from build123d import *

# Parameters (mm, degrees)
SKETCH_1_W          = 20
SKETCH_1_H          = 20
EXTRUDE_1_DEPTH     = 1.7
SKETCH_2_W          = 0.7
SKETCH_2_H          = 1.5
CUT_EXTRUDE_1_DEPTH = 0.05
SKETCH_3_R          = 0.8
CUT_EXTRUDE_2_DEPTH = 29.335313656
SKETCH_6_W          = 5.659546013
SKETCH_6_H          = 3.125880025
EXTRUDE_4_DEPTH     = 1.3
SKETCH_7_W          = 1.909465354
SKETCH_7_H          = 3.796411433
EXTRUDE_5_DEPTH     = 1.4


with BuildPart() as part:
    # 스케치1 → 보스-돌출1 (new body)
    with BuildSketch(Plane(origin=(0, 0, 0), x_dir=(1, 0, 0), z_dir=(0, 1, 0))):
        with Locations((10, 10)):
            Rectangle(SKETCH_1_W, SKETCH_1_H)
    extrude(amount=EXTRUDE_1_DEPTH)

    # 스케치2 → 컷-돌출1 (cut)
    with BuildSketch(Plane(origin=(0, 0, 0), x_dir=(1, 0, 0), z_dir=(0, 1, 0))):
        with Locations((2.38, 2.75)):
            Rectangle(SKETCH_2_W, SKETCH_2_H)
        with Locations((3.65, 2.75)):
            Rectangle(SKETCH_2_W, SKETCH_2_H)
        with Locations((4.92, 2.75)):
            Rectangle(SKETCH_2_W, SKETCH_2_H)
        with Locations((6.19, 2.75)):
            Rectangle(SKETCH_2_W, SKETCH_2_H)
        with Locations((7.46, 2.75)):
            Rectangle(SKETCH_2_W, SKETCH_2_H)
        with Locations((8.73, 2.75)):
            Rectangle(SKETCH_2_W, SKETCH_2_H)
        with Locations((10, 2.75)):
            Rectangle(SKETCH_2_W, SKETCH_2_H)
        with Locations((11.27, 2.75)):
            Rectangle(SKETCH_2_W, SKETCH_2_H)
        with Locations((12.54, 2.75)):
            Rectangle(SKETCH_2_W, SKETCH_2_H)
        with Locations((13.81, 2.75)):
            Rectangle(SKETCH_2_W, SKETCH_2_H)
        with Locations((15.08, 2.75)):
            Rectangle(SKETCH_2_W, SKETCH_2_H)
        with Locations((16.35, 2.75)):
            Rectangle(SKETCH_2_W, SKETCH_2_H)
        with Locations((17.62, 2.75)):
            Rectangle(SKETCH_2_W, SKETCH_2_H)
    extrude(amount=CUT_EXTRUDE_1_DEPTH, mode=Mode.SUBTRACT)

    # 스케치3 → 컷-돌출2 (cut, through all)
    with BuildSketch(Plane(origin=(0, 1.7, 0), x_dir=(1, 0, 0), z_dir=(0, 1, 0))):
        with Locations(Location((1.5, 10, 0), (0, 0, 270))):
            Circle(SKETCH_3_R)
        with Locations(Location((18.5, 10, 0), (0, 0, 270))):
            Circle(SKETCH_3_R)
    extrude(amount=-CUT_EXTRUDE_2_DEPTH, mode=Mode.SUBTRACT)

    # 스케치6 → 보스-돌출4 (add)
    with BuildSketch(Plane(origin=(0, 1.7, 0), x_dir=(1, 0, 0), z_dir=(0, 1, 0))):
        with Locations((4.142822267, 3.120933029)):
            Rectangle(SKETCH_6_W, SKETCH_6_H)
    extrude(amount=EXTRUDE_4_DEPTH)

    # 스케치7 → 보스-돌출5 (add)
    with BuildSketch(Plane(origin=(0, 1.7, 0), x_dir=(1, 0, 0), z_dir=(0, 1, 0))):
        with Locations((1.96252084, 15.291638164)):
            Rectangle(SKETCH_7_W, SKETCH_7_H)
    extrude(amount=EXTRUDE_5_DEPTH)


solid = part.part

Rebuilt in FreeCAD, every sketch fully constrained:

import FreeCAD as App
import Part
import Sketcher

V = App.Vector
Q = App.Units.Quantity

doc = App.newDocument("Part")
params = doc.addObject("Spreadsheet::Sheet", "Params")
for row, (alias, value) in enumerate([
    ("sketch1_width", "20 mm"),
    ("pad1_length", "1.7 mm"),
    ("sketch2_width", "0.7 mm"),
    ("sketch2_height", "1.5 mm"),
    ("pocket1_length", "0.05 mm"),
    ("sketch3_diameter", "1.6 mm"),
    ("pad2_length", "1.3 mm"),
    ("pad3_length", "1.4 mm"),
], start=1):
    params.set(f"A{row}", alias)
    params.set(f"B{row}", "=" + value)
    params.setAlias(f"B{row}", alias)

body = doc.addObject("PartDesign::Body", "Body")

sketch1 = body.newObject("Sketcher::SketchObject", "Sketch")
sketch1.AttachmentSupport = (doc.getObject("XZ_Plane"), [""])
sketch1.MapMode = "FlatFace"
sketch1.addGeometry(Part.LineSegment(V(0, -20, 0), V(0, 0, 0)), False)
sketch1.addGeometry(Part.LineSegment(V(0, 0, 0), V(20, 0, 0)), False)
sketch1.addGeometry(Part.LineSegment(V(20, 0, 0), V(20, -20, 0)), False)
sketch1.addGeometry(Part.LineSegment(V(20, -20, 0), V(0, -20, 0)), False)
sketch1.addConstraint(Sketcher.Constraint("Coincident", 0, 2, 1, 1))
sketch1.addConstraint(Sketcher.Constraint("Coincident", 1, 2, 2, 1))
sketch1.addConstraint(Sketcher.Constraint("Coincident", 2, 2, 3, 1))
sketch1.addConstraint(Sketcher.Constraint("Coincident", 3, 2, 0, 1))
sketch1.addConstraint(Sketcher.Constraint("Vertical", 0))
sketch1.addConstraint(Sketcher.Constraint("Horizontal", 1))
sketch1.addConstraint(Sketcher.Constraint("Vertical", 2))
sketch1.addConstraint(Sketcher.Constraint("Horizontal", 3))
sketch1.addConstraint(Sketcher.Constraint("Coincident", 0, 2, -1, 1))
sketch1.addConstraint(Sketcher.Constraint("Equal", 3, 0))
sketch1.addConstraint(Sketcher.Constraint("DistanceX", 1, 1, 1, 2, Q("20 mm")))
sketch1.setExpression("Constraints[10]", "Params.sketch1_width")
pad1 = body.newObject("PartDesign::Pad", "Pad")
pad1.Profile = sketch1
pad1.setExpression("Length", "Params.pad1_length")
pad1.Reversed = True

sketch2 = body.newObject("Sketcher::SketchObject", "Sketch001")
sketch2.AttachmentSupport = (doc.getObject("XZ_Plane"), [""])
sketch2.MapMode = "FlatFace"
sketch2.addGeometry(Part.LineSegment(V(2, -3.5, 0), V(2, -2, 0)), False)
sketch2.addGeometry(Part.LineSegment(V(2, -2, 0), V(2.7, -2, 0)), False)
sketch2.addGeometry(Part.LineSegment(V(2.7, -2, 0), V(2.7, -3.5, 0)), False)
sketch2.addGeometry(Part.LineSegment(V(2.7, -3.5, 0), V(2, -3.5, 0)), False)
sketch2.addGeometry(Part.LineSegment(V(3.3, -3.5, 0), V(3.3, -2, 0)), False)
sketch2.addGeometry(Part.LineSegment(V(3.3, -2, 0), V(4, -2, 0)), False)
sketch2.addGeometry(Part.LineSegment(V(4, -2, 0), V(4, -3.5, 0)), False)
sketch2.addGeometry(Part.LineSegment(V(4, -3.5, 0), V(3.3, -3.5, 0)), False)
sketch2.addGeometry(Part.LineSegment(V(4.6, -3.5, 0), V(4.6, -2, 0)), False)
sketch2.addGeometry(Part.LineSegment(V(4.6, -2, 0), V(5.3, -2, 0)), False)
sketch2.addGeometry(Part.LineSegment(V(5.3, -2, 0), V(5.3, -3.5, 0)), False)
sketch2.addGeometry(Part.LineSegment(V(5.3, -3.5, 0), V(4.6, -3.5, 0)), False)
sketch2.addGeometry(Part.LineSegment(V(5.8, -3.5, 0), V(5.8, -2, 0)), False)
sketch2.addGeometry(Part.LineSegment(V(5.8, -2, 0), V(6.5, -2, 0)), False)
sketch2.addGeometry(Part.LineSegment(V(6.5, -2, 0), V(6.5, -3.5, 0)), False)
sketch2.addGeometry(Part.LineSegment(V(6.5, -3.5, 0), V(5.8, -3.5, 0)), False)
sketch2.addGeometry(Part.LineSegment(V(7.1, -3.5, 0), V(7.1, -2, 0)), False)
sketch2.addGeometry(Part.LineSegment(V(7.1, -2, 0), V(7.8, -2, 0)), False)
sketch2.addGeometry(Part.LineSegment(V(7.8, -2, 0), V(7.8, -3.5, 0)), False)
sketch2.addGeometry(Part.LineSegment(V(7.8, -3.5, 0), V(7.1, -3.5, 0)), False)
sketch2.addGeometry(Part.LineSegment(V(8.4, -3.5, 0), V(8.4, -2, 0)), False)
sketch2.addGeometry(Part.LineSegment(V(8.4, -2, 0), V(9.1, -2, 0)), False)
sketch2.addGeometry(Part.LineSegment(V(9.1, -2, 0), V(9.1, -3.5, 0)), False)
sketch2.addGeometry(Part.LineSegment(V(9.1, -3.5, 0), V(8.4, -3.5, 0)), False)
sketch2.addGeometry(Part.LineSegment(V(9.7, -3.5, 0), V(9.7, -2, 0)), False)
sketch2.addGeometry(Part.LineSegment(V(9.7, -2, 0), V(10.3, -2, 0)), False)
sketch2.addGeometry(Part.LineSegment(V(10.3, -2, 0), V(10.3, -3.5, 0)), False)
sketch2.addGeometry(Part.LineSegment(V(10.3, -3.5, 0), V(9.7, -3.5, 0)), False)
sketch2.addGeometry(Part.LineSegment(V(10.9, -3.5, 0), V(10.9, -2, 0)), False)
sketch2.addGeometry(Part.LineSegment(V(10.9, -2, 0), V(11.6, -2, 0)), False)
sketch2.addGeometry(Part.LineSegment(V(11.6, -2, 0), V(11.6, -3.5, 0)), False)
sketch2.addGeometry(Part.LineSegment(V(11.6, -3.5, 0), V(10.9, -3.5, 0)), False)
sketch2.addGeometry(Part.LineSegment(V(12.2, -3.5, 0), V(12.2, -2, 0)), False)
sketch2.addGeometry(Part.LineSegment(V(12.2, -2, 0), V(12.9, -2, 0)), False)
sketch2.addGeometry(Part.LineSegment(V(12.9, -2, 0), V(12.9, -3.5, 0)), False)
sketch2.addGeometry(Part.LineSegment(V(12.9, -3.5, 0), V(12.2, -3.5, 0)), False)
sketch2.addGeometry(Part.LineSegment(V(13.5, -3.5, 0), V(13.5, -2, 0)), False)
sketch2.addGeometry(Part.LineSegment(V(13.5, -2, 0), V(14.2, -2, 0)), False)
sketch2.addGeometry(Part.LineSegment(V(14.2, -2, 0), V(14.2, -3.5, 0)), False)
sketch2.addGeometry(Part.LineSegment(V(14.2, -3.5, 0), V(13.5, -3.5, 0)), False)
sketch2.addGeometry(Part.LineSegment(V(14.7, -3.5, 0), V(14.7, -2, 0)), False)
sketch2.addGeometry(Part.LineSegment(V(14.7, -2, 0), V(15.4, -2, 0)), False)
sketch2.addGeometry(Part.LineSegment(V(15.4, -2, 0), V(15.4, -3.5, 0)), False)
sketch2.addGeometry(Part.LineSegment(V(15.4, -3.5, 0), V(14.7, -3.5, 0)), False)
sketch2.addGeometry(Part.LineSegment(V(16, -3.5, 0), V(16, -2, 0)), False)
sketch2.addGeometry(Part.LineSegment(V(16, -2, 0), V(16.7, -2, 0)), False)
sketch2.addGeometry(Part.LineSegment(V(16.7, -2, 0), V(16.7, -3.5, 0)), False)
sketch2.addGeometry(Part.LineSegment(V(16.7, -3.5, 0), V(16, -3.5, 0)), False)
sketch2.addGeometry(Part.LineSegment(V(17.3, -3.5, 0), V(17.3, -2, 0)), False)
sketch2.addGeometry(Part.LineSegment(V(17.3, -2, 0), V(18, -2, 0)), False)
sketch2.addGeometry(Part.LineSegment(V(18, -2, 0), V(18, -3.5, 0)), False)
sketch2.addGeometry(Part.LineSegment(V(18, -3.5, 0), V(17.3, -3.5, 0)), False)
sketch2.addConstraint(Sketcher.Constraint("Coincident", 0, 2, 1, 1))
sketch2.addConstraint(Sketcher.Constraint("Coincident", 1, 2, 2, 1))
sketch2.addConstraint(Sketcher.Constraint("Coincident", 2, 2, 3, 1))
sketch2.addConstraint(Sketcher.Constraint("Coincident", 3, 2, 0, 1))
sketch2.addConstraint(Sketcher.Constraint("Coincident", 4, 2, 5, 1))
sketch2.addConstraint(Sketcher.Constraint("Coincident", 5, 2, 6, 1))
sketch2.addConstraint(Sketcher.Constraint("Coincident", 6, 2, 7, 1))
sketch2.addConstraint(Sketcher.Constraint("Coincident", 7, 2, 4, 1))
sketch2.addConstraint(Sketcher.Constraint("Coincident", 8, 2, 9, 1))
sketch2.addConstraint(Sketcher.Constraint("Coincident", 9, 2, 10, 1))
sketch2.addConstraint(Sketcher.Constraint("Coincident", 10, 2, 11, 1))
sketch2.addConstraint(Sketcher.Constraint("Coincident", 11, 2, 8, 1))
sketch2.addConstraint(Sketcher.Constraint("Coincident", 12, 2, 13, 1))
sketch2.addConstraint(Sketcher.Constraint("Coincident", 13, 2, 14, 1))
sketch2.addConstraint(Sketcher.Constraint("Coincident", 14, 2, 15, 1))
sketch2.addConstraint(Sketcher.Constraint("Coincident", 15, 2, 12, 1))
sketch2.addConstraint(Sketcher.Constraint("Coincident", 16, 2, 17, 1))
sketch2.addConstraint(Sketcher.Constraint("Coincident", 17, 2, 18, 1))
sketch2.addConstraint(Sketcher.Constraint("Coincident", 18, 2, 19, 1))
sketch2.addConstraint(Sketcher.Constraint("Coincident", 19, 2, 16, 1))
sketch2.addConstraint(Sketcher.Constraint("Coincident", 20, 2, 21, 1))
sketch2.addConstraint(Sketcher.Constraint("Coincident", 21, 2, 22, 1))
sketch2.addConstraint(Sketcher.Constraint("Coincident", 22, 2, 23, 1))
sketch2.addConstraint(Sketcher.Constraint("Coincident", 23, 2, 20, 1))
sketch2.addConstraint(Sketcher.Constraint("Coincident", 24, 2, 25, 1))
sketch2.addConstraint(Sketcher.Constraint("Coincident", 25, 2, 26, 1))
sketch2.addConstraint(Sketcher.Constraint("Coincident", 26, 2, 27, 1))
sketch2.addConstraint(Sketcher.Constraint("Coincident", 27, 2, 24, 1))
sketch2.addConstraint(Sketcher.Constraint("Coincident", 28, 2, 29, 1))
sketch2.addConstraint(Sketcher.Constraint("Coincident", 29, 2, 30, 1))
sketch2.addConstraint(Sketcher.Constraint("Coincident", 30, 2, 31, 1))
sketch2.addConstraint(Sketcher.Constraint("Coincident", 31, 2, 28, 1))
sketch2.addConstraint(Sketcher.Constraint("Coincident", 32, 2, 33, 1))
sketch2.addConstraint(Sketcher.Constraint("Coincident", 33, 2, 34, 1))
sketch2.addConstraint(Sketcher.Constraint("Coincident", 34, 2, 35, 1))
sketch2.addConstraint(Sketcher.Constraint("Coincident", 35, 2, 32, 1))
sketch2.addConstraint(Sketcher.Constraint("Coincident", 36, 2, 37, 1))
sketch2.addConstraint(Sketcher.Constraint("Coincident", 37, 2, 38, 1))
sketch2.addConstraint(Sketcher.Constraint("Coincident", 38, 2, 39, 1))
sketch2.addConstraint(Sketcher.Constraint("Coincident", 39, 2, 36, 1))
sketch2.addConstraint(Sketcher.Constraint("Coincident", 40, 2, 41, 1))
sketch2.addConstraint(Sketcher.Constraint("Coincident", 41, 2, 42, 1))
sketch2.addConstraint(Sketcher.Constraint("Coincident", 42, 2, 43, 1))
sketch2.addConstraint(Sketcher.Constraint("Coincident", 43, 2, 40, 1))
sketch2.addConstraint(Sketcher.Constraint("Coincident", 44, 2, 45, 1))
sketch2.addConstraint(Sketcher.Constraint("Coincident", 45, 2, 46, 1))
sketch2.addConstraint(Sketcher.Constraint("Coincident", 46, 2, 47, 1))
sketch2.addConstraint(Sketcher.Constraint("Coincident", 47, 2, 44, 1))
sketch2.addConstraint(Sketcher.Constraint("Coincident", 48, 2, 49, 1))
sketch2.addConstraint(Sketcher.Constraint("Coincident", 49, 2, 50, 1))
sketch2.addConstraint(Sketcher.Constraint("Coincident", 50, 2, 51, 1))
sketch2.addConstraint(Sketcher.Constraint("Coincident", 51, 2, 48, 1))
sketch2.addConstraint(Sketcher.Constraint("Vertical", 0))
sketch2.addConstraint(Sketcher.Constraint("Horizontal", 1))
sketch2.addConstraint(Sketcher.Constraint("Vertical", 2))
sketch2.addConstraint(Sketcher.Constraint("Horizontal", 3))
sketch2.addConstraint(Sketcher.Constraint("Vertical", 4))
sketch2.addConstraint(Sketcher.Constraint("Horizontal", 5))
sketch2.addConstraint(Sketcher.Constraint("Vertical", 6))
sketch2.addConstraint(Sketcher.Constraint("Horizontal", 7))
sketch2.addConstraint(Sketcher.Constraint("Vertical", 8))
sketch2.addConstraint(Sketcher.Constraint("Horizontal", 9))
sketch2.addConstraint(Sketcher.Constraint("Vertical", 10))
sketch2.addConstraint(Sketcher.Constraint("Horizontal", 11))
sketch2.addConstraint(Sketcher.Constraint("Vertical", 12))
sketch2.addConstraint(Sketcher.Constraint("Horizontal", 13))
sketch2.addConstraint(Sketcher.Constraint("Vertical", 14))
sketch2.addConstraint(Sketcher.Constraint("Horizontal", 15))
sketch2.addConstraint(Sketcher.Constraint("Vertical", 16))
sketch2.addConstraint(Sketcher.Constraint("Horizontal", 17))
sketch2.addConstraint(Sketcher.Constraint("Vertical", 18))
sketch2.addConstraint(Sketcher.Constraint("Horizontal", 19))
sketch2.addConstraint(Sketcher.Constraint("Vertical", 20))
sketch2.addConstraint(Sketcher.Constraint("Horizontal", 21))
sketch2.addConstraint(Sketcher.Constraint("Vertical", 22))
sketch2.addConstraint(Sketcher.Constraint("Horizontal", 23))
sketch2.addConstraint(Sketcher.Constraint("Vertical", 24))
sketch2.addConstraint(Sketcher.Constraint("Horizontal", 25))
sketch2.addConstraint(Sketcher.Constraint("Vertical", 26))
sketch2.addConstraint(Sketcher.Constraint("Horizontal", 27))
sketch2.addConstraint(Sketcher.Constraint("Vertical", 28))
sketch2.addConstraint(Sketcher.Constraint("Horizontal", 29))
sketch2.addConstraint(Sketcher.Constraint("Vertical", 30))
sketch2.addConstraint(Sketcher.Constraint("Horizontal", 31))
sketch2.addConstraint(Sketcher.Constraint("Vertical", 32))
sketch2.addConstraint(Sketcher.Constraint("Horizontal", 33))
sketch2.addConstraint(Sketcher.Constraint("Vertical", 34))
sketch2.addConstraint(Sketcher.Constraint("Horizontal", 35))
sketch2.addConstraint(Sketcher.Constraint("Vertical", 36))
sketch2.addConstraint(Sketcher.Constraint("Horizontal", 37))
sketch2.addConstraint(Sketcher.Constraint("Vertical", 38))
sketch2.addConstraint(Sketcher.Constraint("Horizontal", 39))
sketch2.addConstraint(Sketcher.Constraint("Vertical", 40))
sketch2.addConstraint(Sketcher.Constraint("Horizontal", 41))
sketch2.addConstraint(Sketcher.Constraint("Vertical", 42))
sketch2.addConstraint(Sketcher.Constraint("Horizontal", 43))
sketch2.addConstraint(Sketcher.Constraint("Vertical", 44))
sketch2.addConstraint(Sketcher.Constraint("Horizontal", 45))
sketch2.addConstraint(Sketcher.Constraint("Vertical", 46))
sketch2.addConstraint(Sketcher.Constraint("Horizontal", 47))
sketch2.addConstraint(Sketcher.Constraint("Vertical", 48))
sketch2.addConstraint(Sketcher.Constraint("Horizontal", 49))
sketch2.addConstraint(Sketcher.Constraint("Vertical", 50))
sketch2.addConstraint(Sketcher.Constraint("Horizontal", 51))
sketch2.addConstraint(Sketcher.Constraint("Horizontal", 1, 2, 4, 2))
sketch2.addConstraint(Sketcher.Constraint("Horizontal", 3, 2, 6, 2))
sketch2.addConstraint(Sketcher.Constraint("Horizontal", 5, 2, 8, 2))
sketch2.addConstraint(Sketcher.Constraint("Horizontal", 7, 2, 10, 2))
sketch2.addConstraint(Sketcher.Constraint("Horizontal", 9, 2, 12, 2))
sketch2.addConstraint(Sketcher.Constraint("Horizontal", 11, 2, 14, 2))
sketch2.addConstraint(Sketcher.Constraint("Horizontal", 13, 2, 16, 2))
sketch2.addConstraint(Sketcher.Constraint("Horizontal", 15, 2, 18, 2))
sketch2.addConstraint(Sketcher.Constraint("Horizontal", 17, 2, 20, 2))
sketch2.addConstraint(Sketcher.Constraint("Horizontal", 19, 2, 22, 2))
sketch2.addConstraint(Sketcher.Constraint("Horizontal", 21, 2, 24, 2))
sketch2.addConstraint(Sketcher.Constraint("Horizontal", 23, 2, 26, 2))
sketch2.addConstraint(Sketcher.Constraint("Horizontal", 25, 2, 28, 2))
sketch2.addConstraint(Sketcher.Constraint("Horizontal", 27, 2, 30, 2))
sketch2.addConstraint(Sketcher.Constraint("Horizontal", 29, 2, 32, 2))
sketch2.addConstraint(Sketcher.Constraint("Horizontal", 31, 2, 34, 2))
sketch2.addConstraint(Sketcher.Constraint("Horizontal", 33, 2, 36, 2))
sketch2.addConstraint(Sketcher.Constraint("Horizontal", 35, 2, 38, 2))
sketch2.addConstraint(Sketcher.Constraint("Horizontal", 37, 2, 40, 2))
sketch2.addConstraint(Sketcher.Constraint("Horizontal", 39, 2, 42, 2))
sketch2.addConstraint(Sketcher.Constraint("Horizontal", 41, 2, 44, 2))
sketch2.addConstraint(Sketcher.Constraint("Horizontal", 43, 2, 46, 2))
sketch2.addConstraint(Sketcher.Constraint("Horizontal", 45, 2, 48, 2))
sketch2.addConstraint(Sketcher.Constraint("Horizontal", 47, 2, 50, 2))
sketch2.addConstraint(Sketcher.Constraint("Equal", 3, 5))
sketch2.addConstraint(Sketcher.Constraint("Equal", 7, 9))
sketch2.addConstraint(Sketcher.Constraint("Equal", 11, 13))
sketch2.addConstraint(Sketcher.Constraint("Equal", 15, 17))
sketch2.addConstraint(Sketcher.Constraint("Equal", 19, 21))
sketch2.addConstraint(Sketcher.Constraint("Equal", 23, 25))
sketch2.addConstraint(Sketcher.Constraint("Equal", 27, 29))
sketch2.addConstraint(Sketcher.Constraint("Equal", 31, 33))
sketch2.addConstraint(Sketcher.Constraint("Equal", 35, 37))
sketch2.addConstraint(Sketcher.Constraint("Equal", 39, 41))
sketch2.addConstraint(Sketcher.Constraint("Equal", 43, 45))
sketch2.addConstraint(Sketcher.Constraint("Equal", 47, 49))
sketch2.addConstraint(Sketcher.Constraint("DistanceX", 1, 1, 1, 2, Q("0.7 mm")))
sketch2.addConstraint(Sketcher.Constraint("DistanceY", 0, 1, 0, 2, Q("1.5 mm")))
sketch2.addConstraint(Sketcher.Constraint("DistanceY", 0, 2, -1, 1, Q("2 mm")))
sketch2.addConstraint(Sketcher.Constraint("DistanceX", -1, 1, 5, 2, Q("4 mm")))
sketch2.addConstraint(Sketcher.Constraint("DistanceX", -1, 1, 44, 2, Q("16 mm")))
sketch2.addConstraint(Sketcher.Constraint("DistanceX", -1, 1, 0, 2, Q("2.03 mm")))
sketch2.addConstraint(Sketcher.Constraint("DistanceX", -1, 1, 8, 2, Q("4.57 mm")))
sketch2.addConstraint(Sketcher.Constraint("DistanceX", -1, 1, 12, 2, Q("5.84 mm")))
sketch2.addConstraint(Sketcher.Constraint("DistanceX", -1, 1, 16, 2, Q("7.11 mm")))
sketch2.addConstraint(Sketcher.Constraint("DistanceX", -1, 1, 20, 2, Q("8.38 mm")))
sketch2.addConstraint(Sketcher.Constraint("DistanceX", -1, 1, 24, 2, Q("9.65 mm")))
sketch2.addConstraint(Sketcher.Constraint("DistanceX", -1, 1, 28, 2, Q("10.92 mm")))
sketch2.addConstraint(Sketcher.Constraint("DistanceX", -1, 1, 32, 2, Q("12.19 mm")))
sketch2.addConstraint(Sketcher.Constraint("DistanceX", -1, 1, 36, 2, Q("13.46 mm")))
sketch2.addConstraint(Sketcher.Constraint("DistanceX", -1, 1, 40, 2, Q("14.73 mm")))
sketch2.addConstraint(Sketcher.Constraint("DistanceX", -1, 1, 48, 2, Q("17.27 mm")))
sketch2.setExpression("Constraints[140]", "Params.sketch2_width")
sketch2.setExpression("Constraints[141]", "Params.sketch2_height")
pocket1 = body.newObject("PartDesign::Pocket", "Pocket")
pocket1.Profile = sketch2
pocket1.setExpression("Length", "Params.pocket1_length")

sketch3 = body.newObject("Sketcher::SketchObject", "Sketch002")
sketch3.AttachmentSupport = (doc.getObject("XZ_Plane"), [""])
sketch3.MapMode = "FlatFace"
sketch3.AttachmentOffset = App.Placement(V(0, 0, -1.7), App.Rotation())
sketch3.addGeometry(Part.Circle(V(1.5, -10, 0), V(0, 0, 1), 0.8), False)
sketch3.addGeometry(Part.Circle(V(18.5, -10, 0), V(0, 0, 1), 0.8), False)
sketch3.addConstraint(Sketcher.Constraint("Equal", 0, 1))
sketch3.addConstraint(Sketcher.Constraint("Horizontal", 0, 3, 1, 3))
sketch3.addConstraint(Sketcher.Constraint("Diameter", 0, Q("1.6 mm")))
sketch3.addConstraint(Sketcher.Constraint("DistanceY", 0, 3, -1, 1, Q("10 mm")))
sketch3.addConstraint(Sketcher.Constraint("DistanceX", 0, 3, 1, 3, Q("17 mm")))
sketch3.addConstraint(Sketcher.Constraint("DistanceX", -1, 1, 0, 3, Q("1.5 mm")))
sketch3.setExpression("Constraints[2]", "Params.sketch3_diameter")
pocket2 = body.newObject("PartDesign::Pocket", "Pocket001")
pocket2.Profile = sketch3
pocket2.Type = "ThroughAll"
pocket2.Reversed = True

sketch4 = body.newObject("Sketcher::SketchObject", "Sketch003")
sketch4.AttachmentSupport = (doc.getObject("XZ_Plane"), [""])
sketch4.MapMode = "FlatFace"
sketch4.AttachmentOffset = App.Placement(V(0, 0, -1.7), App.Rotation())
sketch4.addGeometry(Part.LineSegment(V(1.3, -4.7, 0), V(1.3, -1.6, 0)), False)
sketch4.addGeometry(Part.LineSegment(V(1.3, -1.6, 0), V(7, -1.6, 0)), False)
sketch4.addGeometry(Part.LineSegment(V(7, -1.6, 0), V(7, -4.7, 0)), False)
sketch4.addGeometry(Part.LineSegment(V(7, -4.7, 0), V(1.3, -4.7, 0)), False)
sketch4.addConstraint(Sketcher.Constraint("Coincident", 0, 2, 1, 1))
sketch4.addConstraint(Sketcher.Constraint("Coincident", 1, 2, 2, 1))
sketch4.addConstraint(Sketcher.Constraint("Coincident", 2, 2, 3, 1))
sketch4.addConstraint(Sketcher.Constraint("Coincident", 3, 2, 0, 1))
sketch4.addConstraint(Sketcher.Constraint("Vertical", 0))
sketch4.addConstraint(Sketcher.Constraint("Horizontal", 1))
sketch4.addConstraint(Sketcher.Constraint("Vertical", 2))
sketch4.addConstraint(Sketcher.Constraint("Horizontal", 3))
sketch4.addConstraint(Sketcher.Constraint("DistanceY", 0, 1, 0, 2, Q("3.12588 mm")))
sketch4.addConstraint(Sketcher.Constraint("DistanceX", 1, 1, 1, 2, Q("5.659546 mm")))
sketch4.addConstraint(Sketcher.Constraint("DistanceX", -1, 1, 0, 2, Q("1.313049 mm")))
sketch4.addConstraint(Sketcher.Constraint("DistanceY", 0, 2, -1, 1, Q("1.557993 mm")))
pad2 = body.newObject("PartDesign::Pad", "Pad001")
pad2.Profile = sketch4
pad2.setExpression("Length", "Params.pad2_length")
pad2.Reversed = True

sketch5 = body.newObject("Sketcher::SketchObject", "Sketch004")
sketch5.AttachmentSupport = (doc.getObject("XZ_Plane"), [""])
sketch5.MapMode = "FlatFace"
sketch5.AttachmentOffset = App.Placement(V(0, 0, -1.7), App.Rotation())
sketch5.addGeometry(Part.LineSegment(V(1, -17.2, 0), V(1, -13.4, 0)), False)
sketch5.addGeometry(Part.LineSegment(V(1, -13.4, 0), V(2.9, -13.4, 0)), False)
sketch5.addGeometry(Part.LineSegment(V(2.9, -13.4, 0), V(2.9, -17.2, 0)), False)
sketch5.addGeometry(Part.LineSegment(V(2.9, -17.2, 0), V(1, -17.2, 0)), False)
sketch5.addConstraint(Sketcher.Constraint("Coincident", 0, 2, 1, 1))
sketch5.addConstraint(Sketcher.Constraint("Coincident", 1, 2, 2, 1))
sketch5.addConstraint(Sketcher.Constraint("Coincident", 2, 2, 3, 1))
sketch5.addConstraint(Sketcher.Constraint("Coincident", 3, 2, 0, 1))
sketch5.addConstraint(Sketcher.Constraint("Vertical", 0))
sketch5.addConstraint(Sketcher.Constraint("Horizontal", 1))
sketch5.addConstraint(Sketcher.Constraint("Vertical", 2))
sketch5.addConstraint(Sketcher.Constraint("Horizontal", 3))
sketch5.addConstraint(Sketcher.Constraint("DistanceY", 0, 1, 0, 2, Q("3.796411 mm")))
sketch5.addConstraint(Sketcher.Constraint("DistanceX", 1, 1, 1, 2, Q("1.909465 mm")))
sketch5.addConstraint(Sketcher.Constraint("DistanceX", -1, 1, 0, 2, Q("1.007788 mm")))
sketch5.addConstraint(Sketcher.Constraint("DistanceY", 0, 2, -1, 1, Q("13.393432 mm")))
pad3 = body.newObject("PartDesign::Pad", "Pad002")
pad3.Profile = sketch5
pad3.setExpression("Length", "Params.pad3_length")
pad3.Reversed = True

doc.recompute()
